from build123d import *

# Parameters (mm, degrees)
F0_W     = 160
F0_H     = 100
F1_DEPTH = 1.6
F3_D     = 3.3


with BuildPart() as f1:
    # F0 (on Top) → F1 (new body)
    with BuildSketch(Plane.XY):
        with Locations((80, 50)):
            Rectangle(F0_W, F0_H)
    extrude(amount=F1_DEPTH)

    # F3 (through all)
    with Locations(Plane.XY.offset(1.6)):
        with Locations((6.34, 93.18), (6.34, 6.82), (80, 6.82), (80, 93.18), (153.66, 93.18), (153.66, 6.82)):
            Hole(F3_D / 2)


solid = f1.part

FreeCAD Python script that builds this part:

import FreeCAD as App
import Part
import Sketcher
from FreeCAD import Vector
Q = App.Units.Quantity


def add_polygon(sketch, points):
    """Adds a closed chain of lines whose ends are joined by coincident constraints."""
    first, n = sketch.GeometryCount, len(points)
    for a, b in zip(points, points[1:] + points[:1]):
        sketch.addGeometry(Part.LineSegment(App.Vector(*a, 0), App.Vector(*b, 0)), False)
    for i in range(n):
        sketch.addConstraint(Sketcher.Constraint("Coincident", first + i, 2, first + (i + 1) % n, 1))

doc = App.newDocument("Part")
body = doc.addObject("PartDesign::Body", "Body")

# Sketch on XY plane
sketch1 = doc.addObject("Sketcher::SketchObject", "Sketch")
body.addObject(sketch1)
sketch1.AttachmentSupport = (doc.XY_Plane, [""])
sketch1.MapMode = "FlatFace"
add_polygon(sketch1, [(0, 100), (0, 0), (160, 0), (160, 100)])  # lines 0-3
sketch1.addConstraint([
    Sketcher.Constraint("Vertical", 0),
    Sketcher.Constraint("Horizontal", 1),
    Sketcher.Constraint("Vertical", 2),
    Sketcher.Constraint("Horizontal", 3),
    Sketcher.Constraint("Coincident", 0, 2, -1, 1),
    Sketcher.Constraint("DistanceX", 1, 1, 1, 2, Q("160 mm")),
    Sketcher.Constraint("DistanceY", 0, 2, 0, 1, Q("100 mm")),
])
pad1 = doc.addObject("PartDesign::Pad", "Pad")
body.addObject(pad1)
pad1.Profile = sketch1
pad1.Length = 1.6

# Sketch on XY plane
sketch2 = doc.addObject("Sketcher::SketchObject", "Sketch001")
body.addObject(sketch2)
sketch2.AttachmentSupport = (doc.XY_Plane, [""])
sketch2.MapMode = "FlatFace"
sketch2.AttachmentOffset = App.Placement(Vector(0, 0, 1.6), App.Rotation())
sketch2.addGeometry([
    Part.Circle(Vector(6.34, 93.18, 0), Vector(0, 0, 1), 1.65),  # 0
    Part.Circle(Vector(6.34, 6.82, 0), Vector(0, 0, 1), 1.65),  # 1
    Part.Circle(Vector(80, 6.82, 0), Vector(0, 0, 1), 1.65),  # 2
    Part.Circle(Vector(80, 93.18, 0), Vector(0, 0, 1), 1.65),  # 3
    Part.Circle(Vector(153.66, 93.18, 0), Vector(0, 0, 1), 1.65),  # 4
    Part.Circle(Vector(153.66, 6.82, 0), Vector(0, 0, 1), 1.65),  # 5
], False)
sketch2.addConstraint([
    Sketcher.Constraint("Equal", 0, 1),
    Sketcher.Constraint("Equal", 1, 2),
    Sketcher.Constraint("Equal", 2, 3),
    Sketcher.Constraint("Equal", 3, 4),
    Sketcher.Constraint("Equal", 4, 5),
    Sketcher.Constraint("Horizontal", 1, 3, 2, 3),
    Sketcher.Constraint("Horizontal", 0, 3, 3, 3),
    Sketcher.Constraint("Horizontal", 3, 3, 4, 3),
    Sketcher.Constraint("Horizontal", 2, 3, 5, 3),
    Sketcher.Constraint("Vertical", 0, 3, 1, 3),
    Sketcher.Constraint("Vertical", 2, 3, 3, 3),
    Sketcher.Constraint("Vertical", 4, 3, 5, 3),
    Sketcher.Constraint("Diameter", 0, Q("3.3 mm")),
    Sketcher.Constraint("DistanceX", -1, 1, 2, 3, Q("80 mm")),
    Sketcher.Constraint("DistanceX", -1, 1, 0, 3, Q("6.34 mm")),
    Sketcher.Constraint("DistanceY", -1, 1, 0, 3, Q("93.18 mm")),
    Sketcher.Constraint("DistanceY", -1, 1, 1, 3, Q("6.82 mm")),
    Sketcher.Constraint("DistanceX", -1, 1, 4, 3, Q("153.66 mm")),
])
doc.recompute()
hole = doc.addObject("PartDesign::Hole", "Hole")
body.addObject(hole)
hole.Profile = sketch2
hole.ThreadType = "None"
hole.Diameter = 3.3
hole.DepthType = "ThroughAll"

doc.recompute()
